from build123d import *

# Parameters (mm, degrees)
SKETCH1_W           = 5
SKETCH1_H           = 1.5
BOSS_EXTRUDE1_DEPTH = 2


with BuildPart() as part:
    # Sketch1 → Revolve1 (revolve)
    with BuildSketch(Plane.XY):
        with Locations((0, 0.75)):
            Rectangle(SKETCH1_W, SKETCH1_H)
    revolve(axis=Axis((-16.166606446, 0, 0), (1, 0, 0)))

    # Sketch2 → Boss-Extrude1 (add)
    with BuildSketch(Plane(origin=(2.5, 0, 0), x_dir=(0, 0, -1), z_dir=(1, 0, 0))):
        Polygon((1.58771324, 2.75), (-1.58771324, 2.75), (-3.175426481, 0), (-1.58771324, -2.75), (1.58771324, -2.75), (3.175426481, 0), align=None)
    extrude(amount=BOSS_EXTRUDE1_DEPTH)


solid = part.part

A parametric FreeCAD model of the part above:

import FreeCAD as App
import Part
import Sketcher
from FreeCAD import Vector
Q = App.Units.Quantity

doc = App.newDocument("Part")
body = doc.addObject("PartDesign::Body", "Body")

# Sketch on XY plane
sketch1 = body.newObject("Sketcher::SketchObject", "Sketch")
sketch1.AttachmentSupport = (doc.getObject("XY_Plane"), [""])
sketch1.MapMode = "FlatFace"
sketch1.addGeometry(Part.LineSegment(Vector(-2.5, 1.5, 0), Vector(-2.5, 0, 0)), False)
sketch1.addGeometry(Part.LineSegment(Vector(-2.5, 0, 0), Vector(2.5, 0, 0)), False)
sketch1.addGeometry(Part.LineSegment(Vector(2.5, 0, 0), Vector(2.5, 1.5, 0)), False)
sketch1.addGeometry(Part.LineSegment(Vector(2.5, 1.5, 0), Vector(-2.5, 1.5, 0)), False)
sketch1.addConstraint(Sketcher.Constraint("Coincident", 0, 2, 1, 1))
sketch1.addConstraint(Sketcher.Constraint("Coincident", 1, 2, 2, 1))
sketch1.addConstraint(Sketcher.Constraint("Coincident", 2, 2, 3, 1))
sketch1.addConstraint(Sketcher.Constraint("Coincident", 3, 2, 0, 1))
sketch1.addConstraint(Sketcher.Constraint("Vertical", 0))
sketch1.addConstraint(Sketcher.Constraint("Horizontal", 1))
sketch1.addConstraint(Sketcher.Constraint("Vertical", 2))
sketch1.addConstraint(Sketcher.Constraint("Horizontal", 3))
sketch1.addConstraint(Sketcher.Constraint("Symmetric", 0, 2, 1, 2, -1, 1))
sketch1.addConstraint(Sketcher.Constraint("DistanceX", 1, 1, 1, 2, Q("5 mm")))
sketch1.addConstraint(Sketcher.Constraint("DistanceY", 0, 2, 0, 1, Q("1.5 mm")))
revolution = body.newObject("PartDesign::Revolution", "Revolution")
revolution.Profile = sketch1
revolution.ReferenceAxis = (sketch1, ["H_Axis"])
revolution.Angle = 360

# Sketch on YZ plane
sketch2 = body.newObject("Sketcher::SketchObject", "Sketch001")
sketch2.AttachmentSupport = (doc.getObject("YZ_Plane"), [""])
sketch2.MapMode = "FlatFace"
sketch2.AttachmentOffset = App.Placement(Vector(0, 0, 2.5), App.Rotation())
sketch2.addGeometry(Part.LineSegment(Vector(2.8, -1.6, 0), Vector(2.8, 1.6, 0)), False)
sketch2.addGeometry(Part.LineSegment(Vector(2.8, 1.6, 0), Vector(0, 3.2, 0)), False)
sketch2.addGeometry(Part.LineSegment(Vector(0, 3.2, 0), Vector(-2.8, 1.6, 0)), False)
sketch2.addGeometry(Part.LineSegment(Vector(-2.8, 1.6, 0), Vector(-2.8, -1.6, 0)), False)
sketch2.addGeometry(Part.LineSegment(Vector(-2.8, -1.6, 0), Vector(0, -3.2, 0)), False)
sketch2.addGeometry(Part.LineSegment(Vector(0, -3.2, 0), Vector(2.8, -1.6, 0)), False)
sketch2.addConstraint(Sketcher.Constraint("Coincident", 0, 2, 1, 1))
sketch2.addConstraint(Sketcher.Constraint("Coincident", 1, 2, 2, 1))
sketch2.addConstraint(Sketcher.Constraint("Coincident", 2, 2, 3, 1))
sketch2.addConstraint(Sketcher.Constraint("Coincident", 3, 2, 4, 1))
sketch2.addConstraint(Sketcher.Constraint("Coincident", 4, 2, 5, 1))
sketch2.addConstraint(Sketcher.Constraint("Coincident", 5, 2, 0, 1))
sketch2.addConstraint(Sketcher.Constraint("Vertical", 0))
sketch2.addConstraint(Sketcher.Constraint("Vertical", 3))
sketch2.addConstraint(Sketcher.Constraint("Symmetric", 0, 2, 3, 2, -1, 1))
sketch2.addConstraint(Sketcher.Constraint("Symmetric", 1, 2, 4, 2, -1, 1))
sketch2.addConstraint(Sketcher.Constraint("PointOnObject", 1, 2, -2))
sketch2.addConstraint(Sketcher.Constraint("Parallel", 2, 5))
sketch2.addConstraint(Sketcher.Constraint("Horizontal", 0, 2, 2, 2))
sketch2.addConstraint(Sketcher.Constraint("Angle", 1, Q("150 deg")))
sketch2.addConstraint(Sketcher.Constraint("DistanceX", 2, 2, 0, 2, Q("5.5 mm")))
sketch2.addConstraint(Sketcher.Constraint("DistanceY", 0, 1, 0, 2, Q("3.175426 mm")))
pad1 = body.newObject("PartDesign::Pad", "Pad")
pad1.Profile = sketch2
pad1.Length = 2

doc.recompute()
